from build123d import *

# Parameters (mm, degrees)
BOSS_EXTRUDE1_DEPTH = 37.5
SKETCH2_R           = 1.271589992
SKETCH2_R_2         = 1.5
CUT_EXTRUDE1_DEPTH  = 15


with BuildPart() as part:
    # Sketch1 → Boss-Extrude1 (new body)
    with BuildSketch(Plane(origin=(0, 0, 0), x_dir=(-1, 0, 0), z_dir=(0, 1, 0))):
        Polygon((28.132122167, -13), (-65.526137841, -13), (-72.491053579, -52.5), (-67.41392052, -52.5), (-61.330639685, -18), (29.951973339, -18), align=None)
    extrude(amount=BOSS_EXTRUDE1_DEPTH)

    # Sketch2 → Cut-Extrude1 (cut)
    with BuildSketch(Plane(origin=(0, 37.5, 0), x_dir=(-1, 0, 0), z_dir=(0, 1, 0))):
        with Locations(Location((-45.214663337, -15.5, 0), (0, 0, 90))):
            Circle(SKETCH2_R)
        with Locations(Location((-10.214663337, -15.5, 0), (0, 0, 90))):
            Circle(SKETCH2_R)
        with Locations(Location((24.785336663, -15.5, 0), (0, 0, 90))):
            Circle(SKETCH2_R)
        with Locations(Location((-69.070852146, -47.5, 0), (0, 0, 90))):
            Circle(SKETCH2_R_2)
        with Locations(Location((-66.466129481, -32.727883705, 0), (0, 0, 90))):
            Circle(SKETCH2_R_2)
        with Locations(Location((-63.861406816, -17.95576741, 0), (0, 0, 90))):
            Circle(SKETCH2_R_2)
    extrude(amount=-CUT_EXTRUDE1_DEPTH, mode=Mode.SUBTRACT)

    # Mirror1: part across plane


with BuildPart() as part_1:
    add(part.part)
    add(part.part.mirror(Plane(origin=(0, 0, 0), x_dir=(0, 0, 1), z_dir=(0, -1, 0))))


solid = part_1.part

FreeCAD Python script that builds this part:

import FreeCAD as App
import Part
import Sketcher
Q = App.Units.Quantity


def add_polygon(sketch, points):
    """Adds a closed chain of lines whose ends are joined by coincident constraints."""
    first, n = sketch.GeometryCount, len(points)
    for a, b in zip(points, points[1:] + points[:1]):
        sketch.addGeometry(Part.LineSegment(App.Vector(*a, 0), App.Vector(*b, 0)), False)
    for i in range(n):
        sketch.addConstraint(Sketcher.Constraint("Coincident", first + i, 2, first + (i + 1) % n, 1))

doc = App.newDocument("Part")
params = doc.addObject("Spreadsheet::Sheet", "Params")
for row, (alias, value) in enumerate([
    ("pad1_length", "37.5 mm"),
    ("sketch2_diameter", "3 mm"),
    ("pocket1_length", "15 mm"),
], start=1):
    params.set(f"A{row}", alias)
    params.set(f"B{row}", "=" + value)
    params.setAlias(f"B{row}", alias)

body = doc.addObject("PartDesign::Body", "Body")

# Sketch on XZ plane
sketch1 = body.newObject("Sketcher::SketchObject", "Sketch")
sketch1.AttachmentSupport = (doc.getObject("XZ_Plane"), [""])
sketch1.MapMode = "FlatFace"
add_polygon(sketch1, [(-28, -13), (66, -13), (72, -52), (67, -52), (61, -18), (-30, -18)])  # lines 0-5
sketch1.addConstraint([
    Sketcher.Constraint("Horizontal", 0),
    Sketcher.Constraint("Horizontal", 2),
    Sketcher.Constraint("Horizontal", 4),
    Sketcher.Constraint("Parallel", 1, 3),
    Sketcher.Constraint("Angle", 1, Q("-80 deg")),
    Sketcher.Constraint("Angle", 5, Q("70 deg")),
    Sketcher.Constraint("DistanceY", 0, 2, -1, 1, Q("13 mm")),
    Sketcher.Constraint("DistanceY", 3, 2, -1, 1, Q("18 mm")),
    Sketcher.Constraint("DistanceY", 1, 2, -1, 1, Q("52.5 mm")),
    Sketcher.Constraint("DistanceX", 0, 1, 0, 2, Q("93.65826 mm")),
    Sketcher.Constraint("DistanceX", 3, 2, 0, 2, Q("4.195498 mm")),
    Sketcher.Constraint("DistanceX", -1, 1, 2, 2, Q("67.413921 mm")),
])
pad1 = body.newObject("PartDesign::Pad", "Pad")
pad1.Profile = sketch1
pad1.setExpression("Length", "Params.pad1_length")
pad1.Reversed = True

# Sketch on XZ plane
sketch2 = body.newObject("Sketcher::SketchObject", "Sketch001")
sketch2.AttachmentSupport = (doc.getObject("XZ_Plane"), [""])
sketch2.MapMode = "FlatFace"
sketch2.AttachmentOffset = App.Placement(App.Vector(0, 0, -37.5), App.Rotation())
sketch2.addGeometry([
    Part.Circle(App.Vector(45.2, -15.5, 0), App.Vector(0, 0, 1), 1.3),  # 0
    Part.Circle(App.Vector(10.2, -15.5, 0), App.Vector(0, 0, 1), 1.3),  # 1
    Part.Circle(App.Vector(-24.8, -15.5, 0), App.Vector(0, 0, 1), 1.3),  # 2
    Part.Circle(App.Vector(69.1, -47.5, 0), App.Vector(0, 0, 1), 1.5),  # 3
    Part.Circle(App.Vector(66.5, -32.7, 0), App.Vector(0, 0, 1), 1.5),  # 4
    Part.Circle(App.Vector(63.9, -18, 0), App.Vector(0, 0, 1), 1.5),  # 5
], False)
sketch2.addConstraint([
    Sketcher.Constraint("Equal", 0, 1),
    Sketcher.Constraint("Equal", 1, 2),
    Sketcher.Constraint("Equal", 3, 4),
    Sketcher.Constraint("Equal", 4, 5),
    Sketcher.Constraint("Horizontal", 0, 3, 1, 3),
    Sketcher.Constraint("Horizontal", 1, 3, 2, 3),
    Sketcher.Constraint("Diameter", 3, Q("3 mm")),
    Sketcher.Constraint("DistanceX", 1, 3, 0, 3, Q("35 mm")),
    Sketcher.Constraint("DistanceX", 2, 3, 1, 3, Q("35 mm")),
    Sketcher.Constraint("DistanceY", 3, 3, 0, 3, Q("32 mm")),
    Sketcher.Constraint("DistanceY", 0, 3, -1, 1, Q("15.5 mm")),
    Sketcher.Constraint("Diameter", 0, Q("2.54318 mm")),
    Sketcher.Constraint("DistanceX", -1, 1, 4, 3, Q("66.466129 mm")),
    Sketcher.Constraint("DistanceX", 0, 3, 3, 3, Q("23.856189 mm")),
    Sketcher.Constraint("DistanceX", -1, 1, 0, 3, Q("45.214663 mm")),
    Sketcher.Constraint("DistanceY", 4, 3, -1, 1, Q("32.727884 mm")),
    Sketcher.Constraint("DistanceX", -1, 1, 5, 3, Q("63.861407 mm")),
    Sketcher.Constraint("DistanceY", 5, 3, -1, 1, Q("17.955767 mm")),
])
sketch2.setExpression("Constraints[6]", "Params.sketch2_diameter")
pocket1 = body.newObject("PartDesign::Pocket", "Pocket")
pocket1.Profile = sketch2
pocket1.setExpression("Length", "Params.pocket1_length")
pocket1.Reversed = True
body2 = doc.addObject("PartDesign::Body", "Body001")
doc.recompute()

body2.BaseFeature = body
doc.recompute()

mirroring = doc.addObject("Part::Mirroring", "Mirroring")
mirroring.Source = body
mirroring.Base = App.Vector(0, 0, 0)
mirroring.Normal = App.Vector(0, -1, 0)
body3 = doc.addObject("PartDesign::Body", "Body002")
body3.BaseFeature = mirroring
boolean = body2.newObject("PartDesign::Boolean", "Boolean")
boolean.Type = "Fuse"
boolean.addObjects([body3])
doc.recompute()
mirroring.Visibility = False

doc.recompute()
